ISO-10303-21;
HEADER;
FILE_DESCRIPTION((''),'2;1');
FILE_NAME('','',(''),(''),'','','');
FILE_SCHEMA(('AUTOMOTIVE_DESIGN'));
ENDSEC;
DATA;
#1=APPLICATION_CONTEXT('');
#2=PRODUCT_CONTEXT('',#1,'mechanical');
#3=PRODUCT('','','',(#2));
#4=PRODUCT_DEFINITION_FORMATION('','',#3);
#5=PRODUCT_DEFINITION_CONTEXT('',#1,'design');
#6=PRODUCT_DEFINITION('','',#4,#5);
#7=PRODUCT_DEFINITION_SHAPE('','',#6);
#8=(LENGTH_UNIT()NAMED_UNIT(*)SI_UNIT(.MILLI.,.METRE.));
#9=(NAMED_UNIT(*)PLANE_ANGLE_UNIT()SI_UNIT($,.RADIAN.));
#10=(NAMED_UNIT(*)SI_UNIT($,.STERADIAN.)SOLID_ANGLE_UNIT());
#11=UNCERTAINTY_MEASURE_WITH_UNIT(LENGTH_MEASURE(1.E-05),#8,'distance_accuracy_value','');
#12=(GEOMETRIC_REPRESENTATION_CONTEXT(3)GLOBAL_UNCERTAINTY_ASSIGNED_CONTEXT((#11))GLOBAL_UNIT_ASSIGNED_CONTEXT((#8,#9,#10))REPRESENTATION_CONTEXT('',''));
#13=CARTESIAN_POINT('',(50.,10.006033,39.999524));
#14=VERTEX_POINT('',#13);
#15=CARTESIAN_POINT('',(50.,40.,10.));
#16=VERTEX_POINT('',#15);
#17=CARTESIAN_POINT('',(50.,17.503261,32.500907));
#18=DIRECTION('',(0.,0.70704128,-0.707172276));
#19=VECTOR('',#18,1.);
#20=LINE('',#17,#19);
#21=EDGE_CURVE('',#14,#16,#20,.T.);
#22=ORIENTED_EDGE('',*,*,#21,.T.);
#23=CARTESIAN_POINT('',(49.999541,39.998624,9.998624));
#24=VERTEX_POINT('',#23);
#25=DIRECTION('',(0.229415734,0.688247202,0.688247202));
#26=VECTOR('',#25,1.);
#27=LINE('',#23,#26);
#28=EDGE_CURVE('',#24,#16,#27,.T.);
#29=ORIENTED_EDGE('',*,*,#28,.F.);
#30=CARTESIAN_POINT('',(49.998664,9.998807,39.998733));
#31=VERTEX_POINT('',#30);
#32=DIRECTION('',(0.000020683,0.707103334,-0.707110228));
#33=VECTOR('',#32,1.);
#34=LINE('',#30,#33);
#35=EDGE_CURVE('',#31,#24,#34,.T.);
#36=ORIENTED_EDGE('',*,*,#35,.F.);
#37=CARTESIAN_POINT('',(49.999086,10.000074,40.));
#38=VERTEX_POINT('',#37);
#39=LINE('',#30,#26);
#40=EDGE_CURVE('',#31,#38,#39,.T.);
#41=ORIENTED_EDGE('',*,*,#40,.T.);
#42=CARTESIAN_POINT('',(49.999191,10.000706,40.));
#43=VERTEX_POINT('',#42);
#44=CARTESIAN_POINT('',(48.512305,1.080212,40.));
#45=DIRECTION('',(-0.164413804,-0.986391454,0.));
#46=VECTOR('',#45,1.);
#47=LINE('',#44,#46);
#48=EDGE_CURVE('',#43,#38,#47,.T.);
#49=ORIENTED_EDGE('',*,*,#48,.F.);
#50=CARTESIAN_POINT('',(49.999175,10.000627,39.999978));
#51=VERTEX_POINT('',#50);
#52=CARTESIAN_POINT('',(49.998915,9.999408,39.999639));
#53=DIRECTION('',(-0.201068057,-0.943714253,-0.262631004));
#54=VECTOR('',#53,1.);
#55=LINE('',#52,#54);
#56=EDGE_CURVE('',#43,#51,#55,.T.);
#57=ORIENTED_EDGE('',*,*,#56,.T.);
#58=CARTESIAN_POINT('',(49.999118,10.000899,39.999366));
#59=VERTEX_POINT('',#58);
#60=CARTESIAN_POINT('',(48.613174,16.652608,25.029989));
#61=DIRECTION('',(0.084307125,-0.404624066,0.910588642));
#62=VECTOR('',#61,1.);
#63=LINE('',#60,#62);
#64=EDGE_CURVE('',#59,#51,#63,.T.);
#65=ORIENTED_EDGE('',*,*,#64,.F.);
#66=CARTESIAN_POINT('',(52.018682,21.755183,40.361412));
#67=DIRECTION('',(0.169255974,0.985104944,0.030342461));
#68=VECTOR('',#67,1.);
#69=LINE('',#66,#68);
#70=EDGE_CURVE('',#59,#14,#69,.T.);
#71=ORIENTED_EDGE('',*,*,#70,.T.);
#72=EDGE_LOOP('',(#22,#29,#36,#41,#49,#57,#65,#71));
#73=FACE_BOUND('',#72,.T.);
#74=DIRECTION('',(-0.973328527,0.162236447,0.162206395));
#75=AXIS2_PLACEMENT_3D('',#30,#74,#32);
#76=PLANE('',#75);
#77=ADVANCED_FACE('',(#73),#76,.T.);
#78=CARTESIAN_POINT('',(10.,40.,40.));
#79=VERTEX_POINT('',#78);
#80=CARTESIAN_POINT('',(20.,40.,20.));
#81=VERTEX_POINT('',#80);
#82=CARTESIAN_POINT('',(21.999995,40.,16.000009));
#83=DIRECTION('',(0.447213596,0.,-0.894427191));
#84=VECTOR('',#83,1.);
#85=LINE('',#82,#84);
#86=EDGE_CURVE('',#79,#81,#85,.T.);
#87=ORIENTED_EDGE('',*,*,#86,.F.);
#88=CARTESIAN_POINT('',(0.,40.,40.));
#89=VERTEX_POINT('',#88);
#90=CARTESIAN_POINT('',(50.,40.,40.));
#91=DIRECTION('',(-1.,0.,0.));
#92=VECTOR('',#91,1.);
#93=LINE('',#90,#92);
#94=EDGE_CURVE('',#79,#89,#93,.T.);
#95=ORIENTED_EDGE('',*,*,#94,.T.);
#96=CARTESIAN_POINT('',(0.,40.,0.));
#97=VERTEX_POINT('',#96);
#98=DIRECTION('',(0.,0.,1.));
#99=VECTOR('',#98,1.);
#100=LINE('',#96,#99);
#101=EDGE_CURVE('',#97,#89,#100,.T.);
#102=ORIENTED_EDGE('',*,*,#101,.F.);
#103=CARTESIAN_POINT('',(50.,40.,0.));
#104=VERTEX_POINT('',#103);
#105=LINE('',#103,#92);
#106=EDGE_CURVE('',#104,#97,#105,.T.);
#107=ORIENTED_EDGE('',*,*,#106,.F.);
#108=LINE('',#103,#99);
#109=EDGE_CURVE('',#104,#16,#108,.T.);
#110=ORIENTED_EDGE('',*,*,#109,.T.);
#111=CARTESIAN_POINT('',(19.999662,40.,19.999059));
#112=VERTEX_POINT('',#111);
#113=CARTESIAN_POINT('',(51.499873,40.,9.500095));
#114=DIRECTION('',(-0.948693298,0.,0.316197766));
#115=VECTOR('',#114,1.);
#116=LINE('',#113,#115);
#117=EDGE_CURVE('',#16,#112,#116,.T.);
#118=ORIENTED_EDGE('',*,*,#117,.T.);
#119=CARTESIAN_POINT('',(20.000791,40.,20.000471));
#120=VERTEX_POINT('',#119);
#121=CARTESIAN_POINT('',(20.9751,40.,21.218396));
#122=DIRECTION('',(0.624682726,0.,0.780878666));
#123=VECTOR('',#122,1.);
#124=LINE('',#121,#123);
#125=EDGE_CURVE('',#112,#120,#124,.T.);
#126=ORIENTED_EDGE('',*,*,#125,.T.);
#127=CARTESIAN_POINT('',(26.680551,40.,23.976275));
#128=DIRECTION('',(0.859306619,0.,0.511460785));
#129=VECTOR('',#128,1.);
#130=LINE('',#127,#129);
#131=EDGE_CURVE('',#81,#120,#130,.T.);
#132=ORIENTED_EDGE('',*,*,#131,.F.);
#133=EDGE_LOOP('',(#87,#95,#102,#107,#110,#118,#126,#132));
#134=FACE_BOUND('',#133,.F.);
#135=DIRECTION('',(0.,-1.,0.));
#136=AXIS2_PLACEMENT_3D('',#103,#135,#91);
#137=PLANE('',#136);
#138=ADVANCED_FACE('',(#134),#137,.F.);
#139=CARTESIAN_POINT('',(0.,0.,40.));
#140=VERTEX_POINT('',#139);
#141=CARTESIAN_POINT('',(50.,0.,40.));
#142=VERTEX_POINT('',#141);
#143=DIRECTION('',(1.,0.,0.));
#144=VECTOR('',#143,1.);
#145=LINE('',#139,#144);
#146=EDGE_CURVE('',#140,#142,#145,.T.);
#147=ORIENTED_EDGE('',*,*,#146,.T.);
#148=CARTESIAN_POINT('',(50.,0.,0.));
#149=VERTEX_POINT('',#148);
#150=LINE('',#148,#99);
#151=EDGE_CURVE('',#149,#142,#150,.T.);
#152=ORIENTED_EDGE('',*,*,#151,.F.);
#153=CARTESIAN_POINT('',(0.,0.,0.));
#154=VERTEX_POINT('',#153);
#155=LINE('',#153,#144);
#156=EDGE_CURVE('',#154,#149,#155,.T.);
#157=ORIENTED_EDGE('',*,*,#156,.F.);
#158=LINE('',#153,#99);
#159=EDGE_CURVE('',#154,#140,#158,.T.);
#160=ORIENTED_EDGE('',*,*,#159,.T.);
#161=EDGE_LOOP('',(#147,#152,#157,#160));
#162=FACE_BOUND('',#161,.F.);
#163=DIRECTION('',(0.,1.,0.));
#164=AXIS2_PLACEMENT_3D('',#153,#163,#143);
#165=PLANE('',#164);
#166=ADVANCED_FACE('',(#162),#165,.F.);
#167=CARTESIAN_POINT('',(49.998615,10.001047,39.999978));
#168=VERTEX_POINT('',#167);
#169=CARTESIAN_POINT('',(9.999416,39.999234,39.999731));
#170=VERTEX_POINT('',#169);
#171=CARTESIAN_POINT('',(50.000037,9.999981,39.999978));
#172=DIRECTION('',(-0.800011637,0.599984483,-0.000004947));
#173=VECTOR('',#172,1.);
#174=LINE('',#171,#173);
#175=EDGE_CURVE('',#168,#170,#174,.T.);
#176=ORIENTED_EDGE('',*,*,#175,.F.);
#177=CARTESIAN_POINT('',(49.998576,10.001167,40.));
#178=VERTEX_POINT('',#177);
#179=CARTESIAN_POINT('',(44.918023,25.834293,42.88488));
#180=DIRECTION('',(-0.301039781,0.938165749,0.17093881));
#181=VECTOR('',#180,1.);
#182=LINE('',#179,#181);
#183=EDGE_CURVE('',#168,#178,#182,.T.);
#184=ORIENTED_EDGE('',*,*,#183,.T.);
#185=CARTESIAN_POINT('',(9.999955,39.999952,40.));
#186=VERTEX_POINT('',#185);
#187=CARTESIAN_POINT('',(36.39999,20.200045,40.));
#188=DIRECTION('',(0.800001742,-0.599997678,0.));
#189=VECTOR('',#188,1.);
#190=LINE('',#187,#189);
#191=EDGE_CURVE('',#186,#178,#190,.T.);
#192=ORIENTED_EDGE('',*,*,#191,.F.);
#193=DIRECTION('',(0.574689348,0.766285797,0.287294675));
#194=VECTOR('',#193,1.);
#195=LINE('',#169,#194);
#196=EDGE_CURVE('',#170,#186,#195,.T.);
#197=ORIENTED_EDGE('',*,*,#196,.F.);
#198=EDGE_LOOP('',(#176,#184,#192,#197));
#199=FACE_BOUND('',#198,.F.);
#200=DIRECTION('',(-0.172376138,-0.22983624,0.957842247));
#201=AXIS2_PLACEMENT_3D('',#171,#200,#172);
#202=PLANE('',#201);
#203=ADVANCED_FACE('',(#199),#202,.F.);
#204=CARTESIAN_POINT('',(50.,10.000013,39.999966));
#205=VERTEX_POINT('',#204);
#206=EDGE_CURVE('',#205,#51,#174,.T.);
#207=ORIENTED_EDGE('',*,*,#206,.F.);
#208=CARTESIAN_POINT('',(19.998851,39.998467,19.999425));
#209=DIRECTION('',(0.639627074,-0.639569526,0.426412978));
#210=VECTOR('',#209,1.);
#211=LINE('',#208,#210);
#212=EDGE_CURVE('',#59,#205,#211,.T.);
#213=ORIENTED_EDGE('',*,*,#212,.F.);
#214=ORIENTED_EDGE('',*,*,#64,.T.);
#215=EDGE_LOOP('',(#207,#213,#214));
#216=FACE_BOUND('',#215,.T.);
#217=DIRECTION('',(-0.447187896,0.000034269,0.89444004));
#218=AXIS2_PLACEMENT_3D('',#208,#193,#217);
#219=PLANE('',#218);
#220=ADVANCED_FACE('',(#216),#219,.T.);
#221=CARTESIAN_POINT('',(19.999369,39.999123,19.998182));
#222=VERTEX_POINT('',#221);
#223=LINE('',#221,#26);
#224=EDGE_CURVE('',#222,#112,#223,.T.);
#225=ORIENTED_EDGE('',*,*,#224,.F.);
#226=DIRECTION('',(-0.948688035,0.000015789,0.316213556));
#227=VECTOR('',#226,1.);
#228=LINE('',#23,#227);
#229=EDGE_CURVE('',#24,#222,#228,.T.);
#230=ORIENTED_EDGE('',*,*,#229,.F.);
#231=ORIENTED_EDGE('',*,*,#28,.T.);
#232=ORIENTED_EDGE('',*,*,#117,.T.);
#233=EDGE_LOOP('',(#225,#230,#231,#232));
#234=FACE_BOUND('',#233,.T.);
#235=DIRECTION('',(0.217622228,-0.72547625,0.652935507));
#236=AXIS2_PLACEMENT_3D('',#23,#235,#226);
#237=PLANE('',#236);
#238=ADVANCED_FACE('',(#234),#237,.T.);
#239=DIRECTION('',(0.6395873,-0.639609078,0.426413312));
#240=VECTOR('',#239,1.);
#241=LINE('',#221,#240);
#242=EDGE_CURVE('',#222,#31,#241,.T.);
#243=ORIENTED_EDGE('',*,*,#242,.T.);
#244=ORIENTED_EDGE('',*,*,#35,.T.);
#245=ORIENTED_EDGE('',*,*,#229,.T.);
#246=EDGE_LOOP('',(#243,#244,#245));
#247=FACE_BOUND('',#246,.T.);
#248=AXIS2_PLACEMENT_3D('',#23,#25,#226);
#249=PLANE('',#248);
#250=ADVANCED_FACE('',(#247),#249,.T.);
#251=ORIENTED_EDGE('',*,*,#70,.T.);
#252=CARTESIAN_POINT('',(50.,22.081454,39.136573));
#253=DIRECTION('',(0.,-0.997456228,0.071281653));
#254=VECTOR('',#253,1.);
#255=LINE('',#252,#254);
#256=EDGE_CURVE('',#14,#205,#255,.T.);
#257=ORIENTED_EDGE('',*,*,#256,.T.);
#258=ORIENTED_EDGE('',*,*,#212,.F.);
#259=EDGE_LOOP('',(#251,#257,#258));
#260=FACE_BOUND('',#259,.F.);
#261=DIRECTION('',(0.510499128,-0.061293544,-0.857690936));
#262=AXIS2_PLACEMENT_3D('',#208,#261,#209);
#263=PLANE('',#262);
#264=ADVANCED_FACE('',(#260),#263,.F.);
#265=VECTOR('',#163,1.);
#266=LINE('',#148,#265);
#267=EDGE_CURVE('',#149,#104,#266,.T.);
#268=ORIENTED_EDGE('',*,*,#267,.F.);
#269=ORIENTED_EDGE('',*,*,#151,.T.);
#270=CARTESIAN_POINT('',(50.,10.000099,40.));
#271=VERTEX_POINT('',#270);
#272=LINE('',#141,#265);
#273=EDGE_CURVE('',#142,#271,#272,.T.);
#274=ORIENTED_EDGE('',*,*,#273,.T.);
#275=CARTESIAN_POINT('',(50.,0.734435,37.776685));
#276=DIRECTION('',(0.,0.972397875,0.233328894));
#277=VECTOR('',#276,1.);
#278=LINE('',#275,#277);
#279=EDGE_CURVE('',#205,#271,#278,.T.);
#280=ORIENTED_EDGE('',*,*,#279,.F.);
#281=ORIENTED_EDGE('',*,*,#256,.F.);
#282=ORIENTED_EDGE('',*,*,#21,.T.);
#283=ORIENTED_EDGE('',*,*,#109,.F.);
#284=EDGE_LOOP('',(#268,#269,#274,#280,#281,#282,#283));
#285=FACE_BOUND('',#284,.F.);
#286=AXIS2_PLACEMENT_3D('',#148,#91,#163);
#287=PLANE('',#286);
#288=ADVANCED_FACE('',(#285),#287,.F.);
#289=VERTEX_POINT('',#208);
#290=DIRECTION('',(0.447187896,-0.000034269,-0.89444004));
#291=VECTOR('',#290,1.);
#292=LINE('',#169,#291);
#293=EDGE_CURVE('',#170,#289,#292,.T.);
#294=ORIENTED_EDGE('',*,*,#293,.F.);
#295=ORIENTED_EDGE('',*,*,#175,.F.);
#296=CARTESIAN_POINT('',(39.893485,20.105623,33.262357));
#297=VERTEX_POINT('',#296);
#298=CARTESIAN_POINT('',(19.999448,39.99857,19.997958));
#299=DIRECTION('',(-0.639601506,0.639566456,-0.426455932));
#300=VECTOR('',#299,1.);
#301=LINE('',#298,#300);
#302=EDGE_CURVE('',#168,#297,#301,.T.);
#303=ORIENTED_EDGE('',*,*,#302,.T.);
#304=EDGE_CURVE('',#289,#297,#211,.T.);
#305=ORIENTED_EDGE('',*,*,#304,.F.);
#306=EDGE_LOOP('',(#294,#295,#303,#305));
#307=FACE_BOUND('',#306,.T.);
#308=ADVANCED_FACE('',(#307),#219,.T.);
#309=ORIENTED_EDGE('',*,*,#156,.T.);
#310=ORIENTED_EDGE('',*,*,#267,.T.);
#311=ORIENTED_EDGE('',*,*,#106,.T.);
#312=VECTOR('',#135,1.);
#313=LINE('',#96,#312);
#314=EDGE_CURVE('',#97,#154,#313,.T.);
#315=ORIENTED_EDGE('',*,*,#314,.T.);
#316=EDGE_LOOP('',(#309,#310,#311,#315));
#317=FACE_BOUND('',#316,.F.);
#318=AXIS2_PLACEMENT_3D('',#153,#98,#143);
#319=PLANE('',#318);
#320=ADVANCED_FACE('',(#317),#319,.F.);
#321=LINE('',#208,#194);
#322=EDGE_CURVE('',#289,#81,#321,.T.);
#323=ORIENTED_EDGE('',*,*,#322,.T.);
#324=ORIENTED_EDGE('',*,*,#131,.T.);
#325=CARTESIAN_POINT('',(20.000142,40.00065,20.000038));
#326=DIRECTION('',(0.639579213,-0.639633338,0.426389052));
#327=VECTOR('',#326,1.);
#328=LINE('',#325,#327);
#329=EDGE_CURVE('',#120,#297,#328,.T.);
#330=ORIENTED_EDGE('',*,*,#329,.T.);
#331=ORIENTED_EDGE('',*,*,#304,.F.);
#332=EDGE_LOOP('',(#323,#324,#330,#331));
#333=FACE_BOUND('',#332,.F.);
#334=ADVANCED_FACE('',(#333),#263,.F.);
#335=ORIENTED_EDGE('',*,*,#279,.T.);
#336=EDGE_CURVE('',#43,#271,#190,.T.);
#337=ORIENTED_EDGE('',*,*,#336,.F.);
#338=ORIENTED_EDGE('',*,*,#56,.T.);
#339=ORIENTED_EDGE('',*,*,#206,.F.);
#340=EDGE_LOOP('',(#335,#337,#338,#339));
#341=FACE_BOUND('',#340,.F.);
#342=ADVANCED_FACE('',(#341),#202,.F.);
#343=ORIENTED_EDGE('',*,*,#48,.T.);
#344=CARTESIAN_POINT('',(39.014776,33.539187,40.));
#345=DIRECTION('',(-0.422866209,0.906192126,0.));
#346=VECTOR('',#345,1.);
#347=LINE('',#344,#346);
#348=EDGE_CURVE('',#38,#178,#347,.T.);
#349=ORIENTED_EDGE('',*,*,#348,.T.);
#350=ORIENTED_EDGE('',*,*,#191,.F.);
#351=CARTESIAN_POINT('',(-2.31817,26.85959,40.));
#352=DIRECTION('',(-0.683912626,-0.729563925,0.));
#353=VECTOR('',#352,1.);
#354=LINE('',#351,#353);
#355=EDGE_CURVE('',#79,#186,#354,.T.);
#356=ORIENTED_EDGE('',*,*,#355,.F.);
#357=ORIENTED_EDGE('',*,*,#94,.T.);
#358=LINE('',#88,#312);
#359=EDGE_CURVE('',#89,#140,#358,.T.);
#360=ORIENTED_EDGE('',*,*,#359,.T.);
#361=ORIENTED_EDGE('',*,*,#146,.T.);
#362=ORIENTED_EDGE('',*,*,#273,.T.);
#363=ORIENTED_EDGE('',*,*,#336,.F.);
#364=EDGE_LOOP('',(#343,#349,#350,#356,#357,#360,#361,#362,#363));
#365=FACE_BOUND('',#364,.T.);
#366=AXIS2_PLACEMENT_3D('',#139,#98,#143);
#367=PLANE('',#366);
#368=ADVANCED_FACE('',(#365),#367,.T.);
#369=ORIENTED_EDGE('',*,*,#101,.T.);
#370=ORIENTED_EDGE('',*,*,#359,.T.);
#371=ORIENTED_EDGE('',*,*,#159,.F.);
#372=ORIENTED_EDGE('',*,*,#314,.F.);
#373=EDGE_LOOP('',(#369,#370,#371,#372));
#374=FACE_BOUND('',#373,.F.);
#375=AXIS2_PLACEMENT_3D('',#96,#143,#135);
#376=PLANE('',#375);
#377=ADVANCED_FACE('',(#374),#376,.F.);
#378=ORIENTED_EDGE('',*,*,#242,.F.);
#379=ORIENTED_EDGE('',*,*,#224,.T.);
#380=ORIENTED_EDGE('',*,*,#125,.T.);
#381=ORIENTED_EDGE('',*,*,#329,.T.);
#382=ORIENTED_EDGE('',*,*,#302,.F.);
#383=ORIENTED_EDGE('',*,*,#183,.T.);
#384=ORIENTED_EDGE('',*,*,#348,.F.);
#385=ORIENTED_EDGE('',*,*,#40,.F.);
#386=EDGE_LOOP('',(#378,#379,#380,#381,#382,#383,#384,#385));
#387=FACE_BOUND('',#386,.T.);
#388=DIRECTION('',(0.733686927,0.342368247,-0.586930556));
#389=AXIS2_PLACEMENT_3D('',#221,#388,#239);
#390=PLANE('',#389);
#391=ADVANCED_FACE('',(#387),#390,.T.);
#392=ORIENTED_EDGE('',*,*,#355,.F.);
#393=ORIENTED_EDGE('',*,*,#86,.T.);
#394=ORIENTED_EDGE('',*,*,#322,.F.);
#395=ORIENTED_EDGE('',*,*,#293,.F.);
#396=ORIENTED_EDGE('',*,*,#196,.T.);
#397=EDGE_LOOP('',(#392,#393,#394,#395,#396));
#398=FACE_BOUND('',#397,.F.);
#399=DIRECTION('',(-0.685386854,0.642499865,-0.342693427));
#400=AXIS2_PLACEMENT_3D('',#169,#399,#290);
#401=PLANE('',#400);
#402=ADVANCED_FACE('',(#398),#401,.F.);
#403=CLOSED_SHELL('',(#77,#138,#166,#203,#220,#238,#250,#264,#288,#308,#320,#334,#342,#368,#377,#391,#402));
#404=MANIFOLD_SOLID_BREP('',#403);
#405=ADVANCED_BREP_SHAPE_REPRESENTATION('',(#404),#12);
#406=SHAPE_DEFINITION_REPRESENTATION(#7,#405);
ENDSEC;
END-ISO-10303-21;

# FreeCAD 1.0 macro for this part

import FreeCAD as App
import Part
import Sketcher

V = App.Vector
Q = App.Units.Quantity

doc = App.newDocument("Part")
body = doc.addObject("PartDesign::Body", "Body")

sketch1 = body.newObject("Sketcher::SketchObject", "Sketch")
sketch1.AttachmentSupport = (doc.getObject("XY_Plane"), [""])
sketch1.MapMode = "FlatFace"
sketch1.addGeometry(Part.LineSegment(V(0, 40, 0), V(0, 0, 0)), False)
sketch1.addGeometry(Part.LineSegment(V(0, 0, 0), V(50, 0, 0)), False)
sketch1.addGeometry(Part.LineSegment(V(50, 0, 0), V(50, 40, 0)), False)
sketch1.addGeometry(Part.LineSegment(V(50, 40, 0), V(0, 40, 0)), False)
sketch1.addConstraint(Sketcher.Constraint("Coincident", 0, 2, 1, 1))
sketch1.addConstraint(Sketcher.Constraint("Coincident", 1, 2, 2, 1))
sketch1.addConstraint(Sketcher.Constraint("Coincident", 2, 2, 3, 1))
sketch1.addConstraint(Sketcher.Constraint("Coincident", 3, 2, 0, 1))
sketch1.addConstraint(Sketcher.Constraint("Vertical", 0))
sketch1.addConstraint(Sketcher.Constraint("Horizontal", 1))
sketch1.addConstraint(Sketcher.Constraint("Vertical", 2))
sketch1.addConstraint(Sketcher.Constraint("Horizontal", 3))
sketch1.addConstraint(Sketcher.Constraint("Coincident", 0, 2, -1, 1))
sketch1.addConstraint(Sketcher.Constraint("DistanceX", 1, 1, 1, 2, Q("1.9685 in")))
sketch1.addConstraint(Sketcher.Constraint("DistanceY", 0, 2, 0, 1, Q("1.5748 in")))
pad1 = body.newObject("PartDesign::Pad", "Pad")
pad1.Profile = sketch1
pad1.Length = Q("1.5748031 in")

sketch2 = body.newObject("Sketcher::SketchObject", "Sketch001")
sketch2.Placement = App.Placement(V(20, 40, 20), App.Rotation(V(-0.447187896, 0.000034269, 0.89444004), V(0.685386854, -0.642499865, 0.342693427), V(0.574689348, 0.766285797, 0.287294675), "ZXY"))
sketch2.addGeometry(Part.LineSegment(V(4, 47, 0), V(0, 0, 0)), False)
sketch2.addGeometry(Part.LineSegment(V(0, 0, 0), V(22, 0, 0)), False)
sketch2.addGeometry(Part.LineSegment(V(22, 0, 0), V(4, 47, 0)), False)
sketch2.addConstraint(Sketcher.Constraint("Coincident", 0, 2, 1, 1))
sketch2.addConstraint(Sketcher.Constraint("Coincident", 1, 2, 2, 1))
sketch2.addConstraint(Sketcher.Constraint("Coincident", 2, 2, 0, 1))
sketch2.addConstraint(Sketcher.Constraint("Horizontal", 1))
sketch2.addConstraint(Sketcher.Constraint("Coincident", 0, 2, -1, 1))
sketch2.addConstraint(Sketcher.Constraint("Distance", 2, Q("1.9685 in")))
sketch2.addConstraint(Sketcher.Constraint("DistanceX", 1, 1, 1, 2, Q("22.3607 mm")))
sketch2.addConstraint(Sketcher.Constraint("DistanceY", -1, 1, 2, 2, Q("1.8382 in")))
pocket1 = body.newObject("PartDesign::Pocket", "Pocket")
pocket1.Profile = sketch2
pocket1.Length = Q("1.5748031 in")
pocket1.Reversed = True

sketch3 = body.newObject("Sketcher::SketchObject", "Sketch002")
sketch3.Placement = App.Placement(V(50, 40, 10), App.Rotation(V(-0.948688035, 0.000015789, 0.316213556), V(0.217622228, -0.725476251, 0.652935508), V(0.229415734, 0.688247202, 0.688247202), "ZXY"))
sketch3.addGeometry(Part.LineSegment(V(0, 0, 0), V(32, 0, 0)), False)
sketch3.addGeometry(Part.LineSegment(V(32, 0, 0), V(9, 41, 0)), False)
sketch3.addGeometry(Part.LineSegment(V(9, 41, 0), V(0, 0, 0)), False)
sketch3.addConstraint(Sketcher.Constraint("Coincident", 0, 2, 1, 1))
sketch3.addConstraint(Sketcher.Constraint("Coincident", 1, 2, 2, 1))
sketch3.addConstraint(Sketcher.Constraint("Coincident", 2, 2, 0, 1))
sketch3.addConstraint(Sketcher.Constraint("Horizontal", 0))
sketch3.addConstraint(Sketcher.Constraint("Coincident", 2, 2, -1, 1))
sketch3.addConstraint(Sketcher.Constraint("DistanceX", 0, 1, 0, 2, Q("1.245 in")))
sketch3.addConstraint(Sketcher.Constraint("Angle", 1, Q("118.1604 deg")))
sketch3.addConstraint(Sketcher.Constraint("Angle", 2, Q("-102.921 deg")))
pocket2 = body.newObject("PartDesign::Pocket", "Pocket001")
pocket2.Profile = sketch3
pocket2.Length = Q("1.5748031 in")
pocket2.Reversed = True

doc.recompute()
